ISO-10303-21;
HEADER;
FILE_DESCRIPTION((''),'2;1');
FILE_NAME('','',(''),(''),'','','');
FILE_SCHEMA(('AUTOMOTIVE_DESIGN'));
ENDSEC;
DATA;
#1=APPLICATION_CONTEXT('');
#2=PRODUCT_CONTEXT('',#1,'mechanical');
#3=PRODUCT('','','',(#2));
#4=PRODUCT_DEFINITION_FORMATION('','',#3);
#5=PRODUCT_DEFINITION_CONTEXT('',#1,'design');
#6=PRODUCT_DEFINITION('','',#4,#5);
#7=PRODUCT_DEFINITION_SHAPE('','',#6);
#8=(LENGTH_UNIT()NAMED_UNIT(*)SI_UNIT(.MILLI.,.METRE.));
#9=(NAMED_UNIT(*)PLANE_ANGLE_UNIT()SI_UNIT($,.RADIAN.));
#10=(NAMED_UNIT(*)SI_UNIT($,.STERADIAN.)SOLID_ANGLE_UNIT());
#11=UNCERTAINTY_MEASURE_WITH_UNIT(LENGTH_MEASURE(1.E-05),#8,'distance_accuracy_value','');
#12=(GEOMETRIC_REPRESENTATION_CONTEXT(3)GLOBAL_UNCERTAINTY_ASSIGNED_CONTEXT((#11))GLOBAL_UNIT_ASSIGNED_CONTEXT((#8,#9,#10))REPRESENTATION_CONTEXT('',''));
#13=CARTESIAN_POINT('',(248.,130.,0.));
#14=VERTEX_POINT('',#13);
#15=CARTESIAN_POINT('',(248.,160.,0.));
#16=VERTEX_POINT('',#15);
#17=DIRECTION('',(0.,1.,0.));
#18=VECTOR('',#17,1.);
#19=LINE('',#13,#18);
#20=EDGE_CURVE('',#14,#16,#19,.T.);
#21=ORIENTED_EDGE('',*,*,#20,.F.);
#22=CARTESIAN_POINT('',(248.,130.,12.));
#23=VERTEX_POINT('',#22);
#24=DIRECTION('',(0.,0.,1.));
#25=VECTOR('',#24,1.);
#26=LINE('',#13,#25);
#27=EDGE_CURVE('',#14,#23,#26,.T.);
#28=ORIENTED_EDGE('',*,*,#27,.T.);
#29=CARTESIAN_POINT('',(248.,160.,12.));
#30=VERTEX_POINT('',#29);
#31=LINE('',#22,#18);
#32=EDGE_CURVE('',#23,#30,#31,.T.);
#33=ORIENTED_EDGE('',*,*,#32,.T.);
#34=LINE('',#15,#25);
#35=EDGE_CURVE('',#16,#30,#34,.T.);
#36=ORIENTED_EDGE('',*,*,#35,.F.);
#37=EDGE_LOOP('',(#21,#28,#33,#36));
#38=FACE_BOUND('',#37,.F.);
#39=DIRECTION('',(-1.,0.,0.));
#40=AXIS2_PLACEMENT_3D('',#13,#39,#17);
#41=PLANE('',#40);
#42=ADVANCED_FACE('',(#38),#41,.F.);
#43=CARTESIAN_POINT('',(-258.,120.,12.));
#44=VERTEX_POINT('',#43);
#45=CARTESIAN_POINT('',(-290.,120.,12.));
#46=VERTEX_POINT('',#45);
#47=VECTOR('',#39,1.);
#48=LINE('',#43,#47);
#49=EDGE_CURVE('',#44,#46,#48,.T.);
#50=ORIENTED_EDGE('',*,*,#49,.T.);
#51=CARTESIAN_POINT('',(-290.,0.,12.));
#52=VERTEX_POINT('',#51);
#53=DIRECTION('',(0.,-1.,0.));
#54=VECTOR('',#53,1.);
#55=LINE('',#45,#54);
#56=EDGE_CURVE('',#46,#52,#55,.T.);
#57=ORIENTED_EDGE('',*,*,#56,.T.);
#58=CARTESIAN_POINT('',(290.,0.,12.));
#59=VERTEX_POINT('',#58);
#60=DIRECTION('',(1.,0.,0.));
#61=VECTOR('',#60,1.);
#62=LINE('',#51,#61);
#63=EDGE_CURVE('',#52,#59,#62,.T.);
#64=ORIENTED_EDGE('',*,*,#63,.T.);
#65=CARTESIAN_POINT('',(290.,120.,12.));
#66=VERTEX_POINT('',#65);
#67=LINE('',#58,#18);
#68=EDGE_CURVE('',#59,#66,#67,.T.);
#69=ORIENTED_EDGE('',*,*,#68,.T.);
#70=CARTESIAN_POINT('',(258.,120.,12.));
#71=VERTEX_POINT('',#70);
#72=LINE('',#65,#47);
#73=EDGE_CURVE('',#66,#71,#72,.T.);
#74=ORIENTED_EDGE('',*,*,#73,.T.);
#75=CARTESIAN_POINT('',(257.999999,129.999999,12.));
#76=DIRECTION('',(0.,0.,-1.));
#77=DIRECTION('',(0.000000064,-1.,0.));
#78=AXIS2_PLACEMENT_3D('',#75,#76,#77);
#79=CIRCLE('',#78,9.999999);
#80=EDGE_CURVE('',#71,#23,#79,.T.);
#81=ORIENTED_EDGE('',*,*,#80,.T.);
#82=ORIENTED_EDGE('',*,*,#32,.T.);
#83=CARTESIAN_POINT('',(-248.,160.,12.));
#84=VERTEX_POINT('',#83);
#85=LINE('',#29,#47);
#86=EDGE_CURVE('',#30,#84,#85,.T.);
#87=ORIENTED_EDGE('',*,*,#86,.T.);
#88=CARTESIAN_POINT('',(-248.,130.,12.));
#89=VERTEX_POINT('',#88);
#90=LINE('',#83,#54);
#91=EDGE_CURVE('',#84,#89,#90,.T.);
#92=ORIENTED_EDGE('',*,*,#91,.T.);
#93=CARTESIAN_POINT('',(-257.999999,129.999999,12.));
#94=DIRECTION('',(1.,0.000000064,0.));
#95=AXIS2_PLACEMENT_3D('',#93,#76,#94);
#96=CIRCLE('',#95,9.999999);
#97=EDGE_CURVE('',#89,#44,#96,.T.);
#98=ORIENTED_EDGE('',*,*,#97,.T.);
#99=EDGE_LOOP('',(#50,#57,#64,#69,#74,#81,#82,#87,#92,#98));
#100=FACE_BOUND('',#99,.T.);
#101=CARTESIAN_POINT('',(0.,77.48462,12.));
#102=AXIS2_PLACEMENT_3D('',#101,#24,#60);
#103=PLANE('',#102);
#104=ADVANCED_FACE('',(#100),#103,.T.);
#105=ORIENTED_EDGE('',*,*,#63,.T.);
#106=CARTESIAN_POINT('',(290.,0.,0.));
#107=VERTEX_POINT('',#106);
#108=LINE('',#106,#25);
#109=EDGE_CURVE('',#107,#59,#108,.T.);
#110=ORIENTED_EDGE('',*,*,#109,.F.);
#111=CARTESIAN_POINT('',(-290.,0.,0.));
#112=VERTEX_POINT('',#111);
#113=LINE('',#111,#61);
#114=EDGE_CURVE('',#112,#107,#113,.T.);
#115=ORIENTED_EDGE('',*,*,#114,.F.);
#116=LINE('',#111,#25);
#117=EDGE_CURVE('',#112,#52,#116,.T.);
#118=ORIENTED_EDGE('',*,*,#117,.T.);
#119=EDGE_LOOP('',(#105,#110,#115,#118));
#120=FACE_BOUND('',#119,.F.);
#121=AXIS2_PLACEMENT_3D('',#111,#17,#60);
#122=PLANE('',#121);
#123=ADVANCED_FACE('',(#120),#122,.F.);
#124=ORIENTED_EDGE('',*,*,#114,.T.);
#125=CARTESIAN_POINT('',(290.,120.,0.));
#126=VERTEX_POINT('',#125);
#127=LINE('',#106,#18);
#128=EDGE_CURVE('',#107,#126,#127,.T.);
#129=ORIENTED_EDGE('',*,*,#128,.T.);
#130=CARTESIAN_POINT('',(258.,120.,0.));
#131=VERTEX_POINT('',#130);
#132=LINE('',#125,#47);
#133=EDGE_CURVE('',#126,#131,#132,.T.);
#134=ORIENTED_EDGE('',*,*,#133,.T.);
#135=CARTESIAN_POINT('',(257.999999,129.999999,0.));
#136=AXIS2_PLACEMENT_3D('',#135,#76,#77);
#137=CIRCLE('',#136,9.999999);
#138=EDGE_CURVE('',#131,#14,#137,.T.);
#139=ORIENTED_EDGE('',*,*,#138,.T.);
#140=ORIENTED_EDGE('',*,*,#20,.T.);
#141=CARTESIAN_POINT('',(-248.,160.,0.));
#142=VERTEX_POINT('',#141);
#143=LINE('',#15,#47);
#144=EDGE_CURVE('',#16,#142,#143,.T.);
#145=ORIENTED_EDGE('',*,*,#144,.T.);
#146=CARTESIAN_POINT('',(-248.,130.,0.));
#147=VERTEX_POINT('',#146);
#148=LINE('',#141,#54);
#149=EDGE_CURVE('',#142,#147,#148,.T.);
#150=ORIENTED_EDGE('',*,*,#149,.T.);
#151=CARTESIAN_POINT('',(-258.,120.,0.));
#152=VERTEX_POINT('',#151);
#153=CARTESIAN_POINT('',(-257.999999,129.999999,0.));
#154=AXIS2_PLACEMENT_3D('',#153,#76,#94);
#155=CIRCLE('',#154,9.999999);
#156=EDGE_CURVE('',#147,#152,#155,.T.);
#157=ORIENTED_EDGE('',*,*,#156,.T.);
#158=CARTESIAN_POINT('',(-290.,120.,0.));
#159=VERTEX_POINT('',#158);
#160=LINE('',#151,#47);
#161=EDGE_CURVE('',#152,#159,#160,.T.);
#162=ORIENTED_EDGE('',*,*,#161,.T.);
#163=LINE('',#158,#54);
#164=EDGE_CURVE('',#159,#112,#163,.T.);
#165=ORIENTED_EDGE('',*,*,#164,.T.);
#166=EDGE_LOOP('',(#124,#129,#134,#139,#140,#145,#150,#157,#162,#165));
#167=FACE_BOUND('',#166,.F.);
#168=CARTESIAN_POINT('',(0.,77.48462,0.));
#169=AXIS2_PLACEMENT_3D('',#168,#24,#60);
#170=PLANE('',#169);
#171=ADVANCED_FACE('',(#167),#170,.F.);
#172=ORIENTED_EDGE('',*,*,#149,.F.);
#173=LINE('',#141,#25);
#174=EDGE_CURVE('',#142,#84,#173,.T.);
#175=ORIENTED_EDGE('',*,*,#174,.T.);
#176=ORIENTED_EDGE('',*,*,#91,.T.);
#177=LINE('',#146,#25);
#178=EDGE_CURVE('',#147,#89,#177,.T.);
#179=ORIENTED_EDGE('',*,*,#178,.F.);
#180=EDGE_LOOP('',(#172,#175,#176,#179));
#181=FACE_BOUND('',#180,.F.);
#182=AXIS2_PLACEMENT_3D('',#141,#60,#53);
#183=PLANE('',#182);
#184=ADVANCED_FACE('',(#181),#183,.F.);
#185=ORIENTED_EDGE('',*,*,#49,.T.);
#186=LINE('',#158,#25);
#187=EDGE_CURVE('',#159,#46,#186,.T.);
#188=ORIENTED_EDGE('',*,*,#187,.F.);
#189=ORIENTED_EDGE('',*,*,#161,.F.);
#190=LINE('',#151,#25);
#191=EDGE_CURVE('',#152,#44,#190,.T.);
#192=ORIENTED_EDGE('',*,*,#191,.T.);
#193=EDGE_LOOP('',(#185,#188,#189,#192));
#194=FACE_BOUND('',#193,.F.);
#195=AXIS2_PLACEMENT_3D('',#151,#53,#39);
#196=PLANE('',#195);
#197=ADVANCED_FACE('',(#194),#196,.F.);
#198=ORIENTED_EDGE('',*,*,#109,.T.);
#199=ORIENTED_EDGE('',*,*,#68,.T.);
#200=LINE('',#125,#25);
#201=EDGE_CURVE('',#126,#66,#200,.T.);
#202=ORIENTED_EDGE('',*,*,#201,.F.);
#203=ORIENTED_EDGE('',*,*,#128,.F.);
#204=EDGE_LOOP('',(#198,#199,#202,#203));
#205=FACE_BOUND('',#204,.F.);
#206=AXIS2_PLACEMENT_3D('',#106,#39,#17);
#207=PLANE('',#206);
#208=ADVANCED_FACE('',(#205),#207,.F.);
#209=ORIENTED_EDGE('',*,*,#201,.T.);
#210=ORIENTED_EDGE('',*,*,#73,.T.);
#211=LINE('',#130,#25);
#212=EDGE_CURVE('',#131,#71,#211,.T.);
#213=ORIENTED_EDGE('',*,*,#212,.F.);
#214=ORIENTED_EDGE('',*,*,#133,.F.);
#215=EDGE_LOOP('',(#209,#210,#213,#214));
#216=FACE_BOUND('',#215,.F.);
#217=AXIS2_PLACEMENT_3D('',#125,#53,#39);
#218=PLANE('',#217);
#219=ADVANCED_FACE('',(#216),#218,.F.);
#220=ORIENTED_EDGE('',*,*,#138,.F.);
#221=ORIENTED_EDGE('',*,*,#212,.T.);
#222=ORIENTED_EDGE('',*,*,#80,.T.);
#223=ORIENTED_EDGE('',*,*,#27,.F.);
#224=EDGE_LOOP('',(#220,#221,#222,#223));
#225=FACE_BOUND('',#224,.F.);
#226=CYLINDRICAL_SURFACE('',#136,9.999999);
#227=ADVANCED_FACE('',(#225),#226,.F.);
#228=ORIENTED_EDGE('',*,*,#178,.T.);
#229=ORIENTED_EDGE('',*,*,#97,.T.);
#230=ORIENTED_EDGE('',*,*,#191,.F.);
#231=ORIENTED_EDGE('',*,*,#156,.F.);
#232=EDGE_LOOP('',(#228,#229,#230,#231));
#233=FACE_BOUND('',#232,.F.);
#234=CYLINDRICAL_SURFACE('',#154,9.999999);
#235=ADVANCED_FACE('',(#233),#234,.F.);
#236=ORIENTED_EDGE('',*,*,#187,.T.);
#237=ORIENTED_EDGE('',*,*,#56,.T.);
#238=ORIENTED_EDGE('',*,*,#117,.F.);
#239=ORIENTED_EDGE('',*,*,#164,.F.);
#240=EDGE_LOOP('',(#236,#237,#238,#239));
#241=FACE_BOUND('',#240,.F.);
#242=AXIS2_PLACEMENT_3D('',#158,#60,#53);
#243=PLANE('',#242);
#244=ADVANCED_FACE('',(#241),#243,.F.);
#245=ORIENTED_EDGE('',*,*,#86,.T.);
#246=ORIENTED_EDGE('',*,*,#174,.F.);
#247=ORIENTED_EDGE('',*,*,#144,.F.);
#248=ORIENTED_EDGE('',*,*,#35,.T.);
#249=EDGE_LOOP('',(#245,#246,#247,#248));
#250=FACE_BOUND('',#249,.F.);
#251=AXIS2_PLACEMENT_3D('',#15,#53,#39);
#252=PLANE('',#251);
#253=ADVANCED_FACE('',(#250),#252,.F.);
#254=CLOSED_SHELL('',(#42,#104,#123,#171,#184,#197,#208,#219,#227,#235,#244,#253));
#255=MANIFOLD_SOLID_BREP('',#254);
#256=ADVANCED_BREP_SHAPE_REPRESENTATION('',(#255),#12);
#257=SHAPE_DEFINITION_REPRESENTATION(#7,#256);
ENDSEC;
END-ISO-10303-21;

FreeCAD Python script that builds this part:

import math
import FreeCAD as App
import Part
import Sketcher
Q = App.Units.Quantity

doc = App.newDocument("Part")
body = doc.addObject("PartDesign::Body", "Body")

sketch1 = body.newObject("Sketcher::SketchObject", "Sketch")
sketch1.AttachmentSupport = (doc.getObject("XY_Plane"), [""])
sketch1.MapMode = "FlatFace"
sketch1.addGeometry(Part.LineSegment(App.Vector(-290, 0, 0), App.Vector(290, 0, 0)), False)
sketch1.addGeometry(Part.LineSegment(App.Vector(290, 0, 0), App.Vector(290, 120, 0)), False)
sketch1.addGeometry(Part.LineSegment(App.Vector(290, 120, 0), App.Vector(258, 120, 0)), False)
sketch1.addGeometry(Part.ArcOfCircle(Part.Circle(App.Vector(258, 130, 0), App.Vector(0, 0, 1), 10), math.radians(180), math.radians(270)), False)
sketch1.addGeometry(Part.LineSegment(App.Vector(248, 130, 0), App.Vector(248, 160, 0)), False)
sketch1.addGeometry(Part.LineSegment(App.Vector(248, 160, 0), App.Vector(-248, 160, 0)), False)
sketch1.addGeometry(Part.LineSegment(App.Vector(-248, 160, 0), App.Vector(-248, 130, 0)), False)
sketch1.addGeometry(Part.ArcOfCircle(Part.Circle(App.Vector(-258, 130, 0), App.Vector(0, 0, 1), 10), math.radians(-90), math.radians(0)), False)
sketch1.addGeometry(Part.LineSegment(App.Vector(-258, 120, 0), App.Vector(-290, 120, 0)), False)
sketch1.addGeometry(Part.LineSegment(App.Vector(-290, 120, 0), App.Vector(-290, 0, 0)), False)
sketch1.addConstraint(Sketcher.Constraint("Coincident", 0, 2, 1, 1))
sketch1.addConstraint(Sketcher.Constraint("Coincident", 1, 2, 2, 1))
sketch1.addConstraint(Sketcher.Constraint("Tangent", 2, 2, 3, 2))
sketch1.addConstraint(Sketcher.Constraint("Tangent", 3, 1, 4, 1))
sketch1.addConstraint(Sketcher.Constraint("Coincident", 4, 2, 5, 1))
sketch1.addConstraint(Sketcher.Constraint("Coincident", 5, 2, 6, 1))
sketch1.addConstraint(Sketcher.Constraint("Tangent", 6, 2, 7, 2))
sketch1.addConstraint(Sketcher.Constraint("Tangent", 7, 1, 8, 1))
sketch1.addConstraint(Sketcher.Constraint("Coincident", 8, 2, 9, 1))
sketch1.addConstraint(Sketcher.Constraint("Coincident", 9, 2, 0, 1))
sketch1.addConstraint(Sketcher.Constraint("Horizontal", 0))
sketch1.addConstraint(Sketcher.Constraint("Vertical", 1))
sketch1.addConstraint(Sketcher.Constraint("Horizontal", 2))
sketch1.addConstraint(Sketcher.Constraint("Vertical", 4))
sketch1.addConstraint(Sketcher.Constraint("Horizontal", 5))
sketch1.addConstraint(Sketcher.Constraint("Vertical", 6))
sketch1.addConstraint(Sketcher.Constraint("Horizontal", 8))
sketch1.addConstraint(Sketcher.Constraint("Vertical", 9))
sketch1.addConstraint(Sketcher.Constraint("Equal", 3, 7))
sketch1.addConstraint(Sketcher.Constraint("Symmetric", 0, 2, 9, 2, -1, 1))
sketch1.addConstraint(Sketcher.Constraint("Symmetric", 3, 3, 7, 3, -2))
sketch1.addConstraint(Sketcher.Constraint("Radius", 3, Q("9.999999 mm")))
sketch1.addConstraint(Sketcher.Constraint("DistanceX", 0, 1, 0, 2, Q("580 mm")))
sketch1.addConstraint(Sketcher.Constraint("DistanceX", 2, 2, 2, 1, Q("32 mm")))
sketch1.addConstraint(Sketcher.Constraint("DistanceY", 1, 1, 1, 2, Q("120 mm")))
sketch1.addConstraint(Sketcher.Constraint("DistanceY", 4, 1, 4, 2, Q("30 mm")))
pad1 = body.newObject("PartDesign::Pad", "Pad")
pad1.Profile = sketch1
pad1.Length = 12

doc.recompute()
